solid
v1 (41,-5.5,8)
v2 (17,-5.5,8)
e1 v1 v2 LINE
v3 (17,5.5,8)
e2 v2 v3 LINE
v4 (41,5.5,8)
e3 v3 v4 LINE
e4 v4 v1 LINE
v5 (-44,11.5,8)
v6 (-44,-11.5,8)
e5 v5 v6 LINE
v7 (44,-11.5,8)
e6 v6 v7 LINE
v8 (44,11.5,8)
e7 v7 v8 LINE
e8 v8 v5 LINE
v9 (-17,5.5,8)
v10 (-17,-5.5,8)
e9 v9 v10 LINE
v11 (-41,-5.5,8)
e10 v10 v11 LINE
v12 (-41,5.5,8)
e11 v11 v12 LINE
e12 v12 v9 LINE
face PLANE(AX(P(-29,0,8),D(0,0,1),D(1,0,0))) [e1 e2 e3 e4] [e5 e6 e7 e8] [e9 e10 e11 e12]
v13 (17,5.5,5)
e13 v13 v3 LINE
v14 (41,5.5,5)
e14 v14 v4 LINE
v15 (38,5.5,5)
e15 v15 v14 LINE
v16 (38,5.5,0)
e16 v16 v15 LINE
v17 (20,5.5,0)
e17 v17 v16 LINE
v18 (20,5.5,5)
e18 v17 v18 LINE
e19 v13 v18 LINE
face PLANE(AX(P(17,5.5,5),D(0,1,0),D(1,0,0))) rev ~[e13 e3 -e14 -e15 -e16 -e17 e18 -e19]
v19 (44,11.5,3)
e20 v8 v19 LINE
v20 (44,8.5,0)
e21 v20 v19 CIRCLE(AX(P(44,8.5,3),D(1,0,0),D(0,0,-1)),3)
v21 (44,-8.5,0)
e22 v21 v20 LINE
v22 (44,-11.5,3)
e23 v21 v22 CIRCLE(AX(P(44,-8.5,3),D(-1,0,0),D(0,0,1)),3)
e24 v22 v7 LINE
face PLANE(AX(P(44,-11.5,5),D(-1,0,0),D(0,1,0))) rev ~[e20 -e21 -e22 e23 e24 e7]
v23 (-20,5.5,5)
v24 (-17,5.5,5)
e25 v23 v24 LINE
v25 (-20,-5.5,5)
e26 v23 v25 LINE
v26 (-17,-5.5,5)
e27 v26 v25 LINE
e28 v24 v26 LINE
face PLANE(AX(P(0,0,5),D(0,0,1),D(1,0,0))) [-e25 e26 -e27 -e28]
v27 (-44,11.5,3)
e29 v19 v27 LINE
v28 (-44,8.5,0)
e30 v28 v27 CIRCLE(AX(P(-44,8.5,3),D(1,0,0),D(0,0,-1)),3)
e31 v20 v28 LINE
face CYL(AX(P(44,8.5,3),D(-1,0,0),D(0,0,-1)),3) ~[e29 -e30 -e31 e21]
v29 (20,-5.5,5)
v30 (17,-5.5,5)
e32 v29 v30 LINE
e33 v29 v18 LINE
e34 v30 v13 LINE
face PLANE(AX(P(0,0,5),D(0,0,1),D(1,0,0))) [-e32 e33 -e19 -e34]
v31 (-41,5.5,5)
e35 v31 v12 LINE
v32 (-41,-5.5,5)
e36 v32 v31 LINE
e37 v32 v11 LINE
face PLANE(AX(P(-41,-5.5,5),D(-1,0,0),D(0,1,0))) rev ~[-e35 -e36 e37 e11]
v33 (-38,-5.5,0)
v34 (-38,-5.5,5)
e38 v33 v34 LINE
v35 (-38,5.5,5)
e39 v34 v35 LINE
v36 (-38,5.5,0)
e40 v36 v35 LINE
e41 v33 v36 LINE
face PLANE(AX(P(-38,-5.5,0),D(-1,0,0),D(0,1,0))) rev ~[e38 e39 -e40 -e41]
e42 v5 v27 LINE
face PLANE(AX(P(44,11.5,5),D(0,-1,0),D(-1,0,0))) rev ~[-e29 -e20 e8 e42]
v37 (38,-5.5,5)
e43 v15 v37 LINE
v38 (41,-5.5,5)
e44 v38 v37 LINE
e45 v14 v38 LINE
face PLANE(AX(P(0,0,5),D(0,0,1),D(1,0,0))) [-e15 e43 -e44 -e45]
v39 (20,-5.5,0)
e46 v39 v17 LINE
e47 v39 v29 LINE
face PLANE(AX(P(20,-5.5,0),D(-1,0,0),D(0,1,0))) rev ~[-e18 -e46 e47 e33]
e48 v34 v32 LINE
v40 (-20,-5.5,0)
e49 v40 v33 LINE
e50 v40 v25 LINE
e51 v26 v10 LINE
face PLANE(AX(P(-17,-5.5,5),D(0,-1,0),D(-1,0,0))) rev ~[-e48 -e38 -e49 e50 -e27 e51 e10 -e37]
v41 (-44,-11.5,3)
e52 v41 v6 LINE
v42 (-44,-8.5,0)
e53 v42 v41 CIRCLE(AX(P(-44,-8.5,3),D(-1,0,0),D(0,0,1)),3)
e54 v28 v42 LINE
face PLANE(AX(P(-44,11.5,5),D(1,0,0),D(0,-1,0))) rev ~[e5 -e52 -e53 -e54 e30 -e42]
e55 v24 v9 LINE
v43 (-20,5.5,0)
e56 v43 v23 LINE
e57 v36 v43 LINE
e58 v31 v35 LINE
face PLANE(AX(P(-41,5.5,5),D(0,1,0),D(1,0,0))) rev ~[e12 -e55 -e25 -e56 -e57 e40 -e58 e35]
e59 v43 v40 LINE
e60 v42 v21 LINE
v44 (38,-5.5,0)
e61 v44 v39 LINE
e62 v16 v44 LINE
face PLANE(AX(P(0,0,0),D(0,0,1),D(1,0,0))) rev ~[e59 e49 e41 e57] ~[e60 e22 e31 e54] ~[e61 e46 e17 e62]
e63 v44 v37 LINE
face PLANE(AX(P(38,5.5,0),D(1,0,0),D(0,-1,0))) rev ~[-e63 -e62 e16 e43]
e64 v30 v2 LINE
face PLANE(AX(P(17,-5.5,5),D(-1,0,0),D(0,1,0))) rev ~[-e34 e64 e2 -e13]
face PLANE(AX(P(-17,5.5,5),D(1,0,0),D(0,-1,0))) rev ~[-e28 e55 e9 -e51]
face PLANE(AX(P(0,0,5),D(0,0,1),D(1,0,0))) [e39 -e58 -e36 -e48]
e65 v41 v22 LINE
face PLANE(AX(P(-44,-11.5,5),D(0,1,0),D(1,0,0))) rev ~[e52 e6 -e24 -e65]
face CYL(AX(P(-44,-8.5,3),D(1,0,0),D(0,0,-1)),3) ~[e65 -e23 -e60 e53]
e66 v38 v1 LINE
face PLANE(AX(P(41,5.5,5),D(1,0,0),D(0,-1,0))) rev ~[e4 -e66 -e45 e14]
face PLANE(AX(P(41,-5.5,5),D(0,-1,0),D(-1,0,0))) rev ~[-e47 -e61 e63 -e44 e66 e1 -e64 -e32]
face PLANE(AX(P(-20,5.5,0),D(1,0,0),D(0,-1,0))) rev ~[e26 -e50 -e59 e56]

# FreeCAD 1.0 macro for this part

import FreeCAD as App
import Part
import Sketcher

V = App.Vector


def edges_at(feature, points):
    """Names of the edges that pass closest to the given points."""
    edges = feature.Shape.Edges
    near = lambda p: min(range(len(edges)), key=lambda i: edges[i].distToShape(Part.Vertex(*p))[0])
    return sorted({f"Edge{near(p) + 1}" for p in points})

doc = App.newDocument("Part")
body = doc.addObject("PartDesign::Body", "Body")

# Sketch on XY plane
sketch1 = body.newObject("Sketcher::SketchObject", "Sketch")
sketch1.AttachmentSupport = (doc.getObject("XY_Plane"), [""])
sketch1.MapMode = "FlatFace"
sketch1.addGeometry([
    Part.LineSegment(V(-44, 12, 0), V(-44, -12, 0)),  # 0
    Part.LineSegment(V(-44, -12, 0), V(44, -12, 0)),  # 1
    Part.LineSegment(V(44, -12, 0), V(44, 12, 0)),  # 2
    Part.LineSegment(V(44, 12, 0), V(-44, 12, 0)),  # 3
    Part.LineSegment(V(-38, 6, 0), V(-20, 6, 0)),  # 4
    Part.LineSegment(V(-20, 6, 0), V(-20, -6, 0)),  # 5
    Part.LineSegment(V(-20, -6, 0), V(-38, -6, 0)),  # 6
    Part.LineSegment(V(-38, -6, 0), V(-38, 6, 0)),  # 7
    Part.LineSegment(V(38, -6, 0), V(20, -6, 0)),  # 8
    Part.LineSegment(V(20, -6, 0), V(20, 6, 0)),  # 9
    Part.LineSegment(V(20, 6, 0), V(38, 6, 0)),  # 10
    Part.LineSegment(V(38, 6, 0), V(38, -6, 0)),  # 11
], False)
sketch1.addConstraint([
    Sketcher.Constraint("Coincident", 0, 2, 1, 1),
    Sketcher.Constraint("Coincident", 1, 2, 2, 1),
    Sketcher.Constraint("Coincident", 2, 2, 3, 1),
    Sketcher.Constraint("Coincident", 3, 2, 0, 1),
    Sketcher.Constraint("Coincident", 4, 2, 5, 1),
    Sketcher.Constraint("Coincident", 5, 2, 6, 1),
    Sketcher.Constraint("Coincident", 6, 2, 7, 1),
    Sketcher.Constraint("Coincident", 7, 2, 4, 1),
    Sketcher.Constraint("Coincident", 8, 2, 9, 1),
    Sketcher.Constraint("Coincident", 9, 2, 10, 1),
    Sketcher.Constraint("Coincident", 10, 2, 11, 1),
    Sketcher.Constraint("Coincident", 11, 2, 8, 1),
    Sketcher.Constraint("Vertical", 0),
    Sketcher.Constraint("Horizontal", 1),
    Sketcher.Constraint("Vertical", 2),
    Sketcher.Constraint("Horizontal", 3),
    Sketcher.Constraint("Horizontal", 4),
    Sketcher.Constraint("Vertical", 5),
    Sketcher.Constraint("Horizontal", 6),
    Sketcher.Constraint("Vertical", 7),
    Sketcher.Constraint("Horizontal", 8),
    Sketcher.Constraint("Vertical", 9),
    Sketcher.Constraint("Horizontal", 10),
    Sketcher.Constraint("Vertical", 11),
    Sketcher.Constraint("Symmetric", 0, 2, 2, 2, -1, 1),
    Sketcher.Constraint("Symmetric", 4, 2, 8, 2, -1, 1),
    Sketcher.Constraint("Symmetric", 6, 2, 10, 2, -1, 1),
    Sketcher.Constraint("Horizontal", 6, 2, 8, 2),
    Sketcher.Constraint("DistanceX", 1, 1, 1, 2, 88.0),
    Sketcher.Constraint("DistanceX", 4, 1, 4, 2, 18.0),
    Sketcher.Constraint("DistanceY", 0, 2, 0, 1, 23.0),
    Sketcher.Constraint("DistanceY", 5, 2, 5, 1, 11.0),
    Sketcher.Constraint("DistanceX", 4, 2, -1, 1, 20.0),
])
pad1 = body.newObject("PartDesign::Pad", "Pad")
pad1.Profile = sketch1
pad1.Length = 5

# Sketch on XY plane
sketch2 = body.newObject("Sketcher::SketchObject", "Sketch001")
sketch2.AttachmentSupport = (doc.getObject("XY_Plane"), [""])
sketch2.MapMode = "FlatFace"
sketch2.AttachmentOffset = App.Placement(V(0, 0, 5), App.Rotation())
sketch2.addGeometry([
    Part.LineSegment(V(-44, 12, 0), V(-44, -12, 0)),  # 0
    Part.LineSegment(V(-44, -12, 0), V(44, -12, 0)),  # 1
    Part.LineSegment(V(44, -12, 0), V(44, 12, 0)),  # 2
    Part.LineSegment(V(44, 12, 0), V(-44, 12, 0)),  # 3
    Part.LineSegment(V(-41, -6, 0), V(-41, 6, 0)),  # 4
    Part.LineSegment(V(-41, 6, 0), V(-17, 6, 0)),  # 5
    Part.LineSegment(V(-17, 6, 0), V(-17, -6, 0)),  # 6
    Part.LineSegment(V(-17, -6, 0), V(-41, -6, 0)),  # 7
    Part.LineSegment(V(17, -6, 0), V(17, 6, 0)),  # 8
    Part.LineSegment(V(17, 6, 0), V(41, 6, 0)),  # 9
    Part.LineSegment(V(41, 6, 0), V(41, -6, 0)),  # 10
    Part.LineSegment(V(41, -6, 0), V(17, -6, 0)),  # 11
], False)
sketch2.addConstraint([
    Sketcher.Constraint("Coincident", 0, 2, 1, 1),
    Sketcher.Constraint("Coincident", 1, 2, 2, 1),
    Sketcher.Constraint("Coincident", 2, 2, 3, 1),
    Sketcher.Constraint("Coincident", 3, 2, 0, 1),
    Sketcher.Constraint("Coincident", 4, 2, 5, 1),
    Sketcher.Constraint("Coincident", 5, 2, 6, 1),
    Sketcher.Constraint("Coincident", 6, 2, 7, 1),
    Sketcher.Constraint("Coincident", 7, 2, 4, 1),
    Sketcher.Constraint("Coincident", 8, 2, 9, 1),
    Sketcher.Constraint("Coincident", 9, 2, 10, 1),
    Sketcher.Constraint("Coincident", 10, 2, 11, 1),
    Sketcher.Constraint("Coincident", 11, 2, 8, 1),
    Sketcher.Constraint("Vertical", 0),
    Sketcher.Constraint("Horizontal", 1),
    Sketcher.Constraint("Vertical", 2),
    Sketcher.Constraint("Horizontal", 3),
    Sketcher.Constraint("Vertical", 4),
    Sketcher.Constraint("Horizontal", 5),
    Sketcher.Constraint("Vertical", 6),
    Sketcher.Constraint("Horizontal", 7),
    Sketcher.Constraint("Vertical", 8),
    Sketcher.Constraint("Horizontal", 9),
    Sketcher.Constraint("Vertical", 10),
    Sketcher.Constraint("Horizontal", 11),
    Sketcher.Constraint("Symmetric", 0, 2, 2, 2, -1, 1),
    Sketcher.Constraint("Symmetric", 6, 2, 8, 2, -1, 1),
    Sketcher.Constraint("Symmetric", 4, 2, 10, 2, -1, 1),
    Sketcher.Constraint("Horizontal", 5, 2, 8, 2),
    Sketcher.Constraint("DistanceX", 1, 1, 1, 2, 88.0),
    Sketcher.Constraint("DistanceX", 5, 1, 5, 2, 24.0),
    Sketcher.Constraint("DistanceY", 0, 2, 0, 1, 23.0),
    Sketcher.Constraint("DistanceY", 4, 1, 4, 2, 11.0),
    Sketcher.Constraint("DistanceX", 4, 2, -1, 1, 41.0),
])
pad2 = body.newObject("PartDesign::Pad", "Pad001")
pad2.Profile = sketch2
pad2.Length = 3
doc.recompute()

fillet = body.newObject("PartDesign::Fillet", "Fillet")
fillet.Base = (pad2, edges_at(pad2, [(0, -11.5, 0), (0, 11.5, 0)]))
fillet.Radius = 3

doc.recompute()
